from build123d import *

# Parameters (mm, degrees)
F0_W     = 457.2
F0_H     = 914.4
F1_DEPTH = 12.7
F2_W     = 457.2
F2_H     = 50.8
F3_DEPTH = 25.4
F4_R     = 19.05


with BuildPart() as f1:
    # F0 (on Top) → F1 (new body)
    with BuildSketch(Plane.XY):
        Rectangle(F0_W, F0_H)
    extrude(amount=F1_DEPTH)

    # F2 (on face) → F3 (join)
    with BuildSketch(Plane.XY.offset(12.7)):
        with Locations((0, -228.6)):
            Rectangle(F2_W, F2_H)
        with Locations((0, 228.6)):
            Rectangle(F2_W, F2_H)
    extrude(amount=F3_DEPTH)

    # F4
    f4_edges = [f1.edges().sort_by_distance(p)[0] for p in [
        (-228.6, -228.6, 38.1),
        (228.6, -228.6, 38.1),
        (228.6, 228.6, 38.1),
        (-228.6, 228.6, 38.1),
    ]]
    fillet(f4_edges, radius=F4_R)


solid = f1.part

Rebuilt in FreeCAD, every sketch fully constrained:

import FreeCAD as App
import Part
import Sketcher
from FreeCAD import Vector
Q = App.Units.Quantity


def edges_at(feature, points):
    """Names of the edges that pass closest to the given points."""
    edges = feature.Shape.Edges
    near = lambda p: min(range(len(edges)), key=lambda i: edges[i].distToShape(Part.Vertex(*p))[0])
    return sorted({f"Edge{near(p) + 1}" for p in points})

doc = App.newDocument("Part")
body = doc.addObject("PartDesign::Body", "Body")

sketch1 = body.newObject("Sketcher::SketchObject", "Sketch")
sketch1.AttachmentSupport = (doc.getObject("XY_Plane"), [""])
sketch1.MapMode = "FlatFace"
sketch1.addGeometry(Part.LineSegment(Vector(-229, 457, 0), Vector(-229, -457, 0)), False)
sketch1.addGeometry(Part.LineSegment(Vector(-229, -457, 0), Vector(229, -457, 0)), False)
sketch1.addGeometry(Part.LineSegment(Vector(229, -457, 0), Vector(229, 457, 0)), False)
sketch1.addGeometry(Part.LineSegment(Vector(229, 457, 0), Vector(-229, 457, 0)), False)
sketch1.addConstraint(Sketcher.Constraint("Coincident", 0, 2, 1, 1))
sketch1.addConstraint(Sketcher.Constraint("Coincident", 1, 2, 2, 1))
sketch1.addConstraint(Sketcher.Constraint("Coincident", 2, 2, 3, 1))
sketch1.addConstraint(Sketcher.Constraint("Coincident", 3, 2, 0, 1))
sketch1.addConstraint(Sketcher.Constraint("Vertical", 0))
sketch1.addConstraint(Sketcher.Constraint("Horizontal", 1))
sketch1.addConstraint(Sketcher.Constraint("Vertical", 2))
sketch1.addConstraint(Sketcher.Constraint("Horizontal", 3))
sketch1.addConstraint(Sketcher.Constraint("Symmetric", 0, 2, 2, 2, -1, 1))
sketch1.addConstraint(Sketcher.Constraint("DistanceX", 1, 1, 1, 2, Q("18 in")))
sketch1.addConstraint(Sketcher.Constraint("DistanceY", 0, 2, 0, 1, Q("36 in")))
pad1 = body.newObject("PartDesign::Pad", "Pad")
pad1.Profile = sketch1
pad1.Length = Q("0.5 in")

sketch2 = body.newObject("Sketcher::SketchObject", "Sketch001")
sketch2.AttachmentSupport = (doc.getObject("XY_Plane"), [""])
sketch2.MapMode = "FlatFace"
sketch2.AttachmentOffset = App.Placement(Vector(0, 0, 0.5 * 25.4), App.Rotation())
sketch2.addGeometry(Part.LineSegment(Vector(-229, -203, 0), Vector(-229, -254, 0)), False)
sketch2.addGeometry(Part.LineSegment(Vector(-229, -254, 0), Vector(229, -254, 0)), False)
sketch2.addGeometry(Part.LineSegment(Vector(229, -254, 0), Vector(229, -203, 0)), False)
sketch2.addGeometry(Part.LineSegment(Vector(229, -203, 0), Vector(-229, -203, 0)), False)
sketch2.addGeometry(Part.LineSegment(Vector(-229, 254, 0), Vector(-229, 203, 0)), False)
sketch2.addGeometry(Part.LineSegment(Vector(-229, 203, 0), Vector(229, 203, 0)), False)
sketch2.addGeometry(Part.LineSegment(Vector(229, 203, 0), Vector(229, 254, 0)), False)
sketch2.addGeometry(Part.LineSegment(Vector(229, 254, 0), Vector(-229, 254, 0)), False)
sketch2.addConstraint(Sketcher.Constraint("Coincident", 0, 2, 1, 1))
sketch2.addConstraint(Sketcher.Constraint("Coincident", 1, 2, 2, 1))
sketch2.addConstraint(Sketcher.Constraint("Coincident", 2, 2, 3, 1))
sketch2.addConstraint(Sketcher.Constraint("Coincident", 3, 2, 0, 1))
sketch2.addConstraint(Sketcher.Constraint("Coincident", 4, 2, 5, 1))
sketch2.addConstraint(Sketcher.Constraint("Coincident", 5, 2, 6, 1))
sketch2.addConstraint(Sketcher.Constraint("Coincident", 6, 2, 7, 1))
sketch2.addConstraint(Sketcher.Constraint("Coincident", 7, 2, 4, 1))
sketch2.addConstraint(Sketcher.Constraint("Vertical", 0))
sketch2.addConstraint(Sketcher.Constraint("Horizontal", 1))
sketch2.addConstraint(Sketcher.Constraint("Vertical", 2))
sketch2.addConstraint(Sketcher.Constraint("Horizontal", 3))
sketch2.addConstraint(Sketcher.Constraint("Vertical", 4))
sketch2.addConstraint(Sketcher.Constraint("Horizontal", 5))
sketch2.addConstraint(Sketcher.Constraint("Vertical", 6))
sketch2.addConstraint(Sketcher.Constraint("Horizontal", 7))
sketch2.addConstraint(Sketcher.Constraint("Symmetric", 2, 2, 4, 2, -1, 1))
sketch2.addConstraint(Sketcher.Constraint("Symmetric", 0, 2, 6, 2, -1, 1))
sketch2.addConstraint(Sketcher.Constraint("Vertical", 3, 2, 4, 2))
sketch2.addConstraint(Sketcher.Constraint("DistanceX", 1, 1, 1, 2, Q("18 in")))
sketch2.addConstraint(Sketcher.Constraint("DistanceY", 0, 2, 0, 1, Q("2 in")))
sketch2.addConstraint(Sketcher.Constraint("DistanceY", 0, 2, -1, 1, Q("10 in")))
pad2 = body.newObject("PartDesign::Pad", "Pad001")
pad2.Profile = sketch2
pad2.Length = Q("1 in")
doc.recompute()

fillet = body.newObject("PartDesign::Fillet", "Fillet")
fillet.Base = (pad2, edges_at(pad2, [
    (-228.6, -228.6, 38.1),
    (228.6, -228.6, 38.1),
    (228.6, 228.6, 38.1),
    (-228.6, 228.6, 38.1),
]))
fillet.Radius = Q("0.75 in")

doc.recompute()
